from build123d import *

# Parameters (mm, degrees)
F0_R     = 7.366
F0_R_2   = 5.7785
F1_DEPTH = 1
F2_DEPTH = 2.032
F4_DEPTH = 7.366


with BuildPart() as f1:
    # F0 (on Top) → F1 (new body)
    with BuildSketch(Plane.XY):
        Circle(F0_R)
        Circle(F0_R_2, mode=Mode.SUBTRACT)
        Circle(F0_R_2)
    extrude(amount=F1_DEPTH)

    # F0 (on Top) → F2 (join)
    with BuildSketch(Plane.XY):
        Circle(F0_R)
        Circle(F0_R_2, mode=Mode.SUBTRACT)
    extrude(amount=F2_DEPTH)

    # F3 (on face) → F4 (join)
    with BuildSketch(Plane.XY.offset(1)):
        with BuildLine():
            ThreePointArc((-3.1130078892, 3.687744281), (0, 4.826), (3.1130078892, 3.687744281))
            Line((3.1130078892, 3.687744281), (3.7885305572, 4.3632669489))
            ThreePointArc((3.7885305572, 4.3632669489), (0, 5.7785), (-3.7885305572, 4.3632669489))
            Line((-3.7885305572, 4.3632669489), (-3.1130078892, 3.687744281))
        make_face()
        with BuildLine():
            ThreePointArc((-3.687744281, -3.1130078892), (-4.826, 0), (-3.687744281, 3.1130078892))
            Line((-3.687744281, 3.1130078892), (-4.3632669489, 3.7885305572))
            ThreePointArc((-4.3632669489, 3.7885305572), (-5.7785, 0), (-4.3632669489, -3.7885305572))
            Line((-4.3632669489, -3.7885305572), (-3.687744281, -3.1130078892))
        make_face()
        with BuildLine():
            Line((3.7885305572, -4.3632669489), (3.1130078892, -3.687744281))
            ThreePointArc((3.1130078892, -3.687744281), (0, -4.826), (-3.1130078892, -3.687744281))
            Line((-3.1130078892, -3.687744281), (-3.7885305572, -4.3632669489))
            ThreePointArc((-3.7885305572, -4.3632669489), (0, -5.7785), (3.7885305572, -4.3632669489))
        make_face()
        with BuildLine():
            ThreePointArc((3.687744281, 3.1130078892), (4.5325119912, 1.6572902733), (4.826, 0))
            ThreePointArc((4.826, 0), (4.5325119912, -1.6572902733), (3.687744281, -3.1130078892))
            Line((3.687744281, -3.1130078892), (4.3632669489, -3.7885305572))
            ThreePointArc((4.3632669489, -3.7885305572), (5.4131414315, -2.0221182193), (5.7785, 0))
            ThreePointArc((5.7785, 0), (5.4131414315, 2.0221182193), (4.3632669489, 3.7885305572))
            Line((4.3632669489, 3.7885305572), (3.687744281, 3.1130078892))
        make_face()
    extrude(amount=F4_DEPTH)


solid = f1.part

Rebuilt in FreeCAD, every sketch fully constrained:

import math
import FreeCAD as App
import Part
import Sketcher

V = App.Vector
Q = App.Units.Quantity

doc = App.newDocument("Part")
body = doc.addObject("PartDesign::Body", "Body")

# Sketch on XY plane
sketch1 = body.newObject("Sketcher::SketchObject", "Sketch")
sketch1.AttachmentSupport = (doc.getObject("XY_Plane"), [""])
sketch1.MapMode = "FlatFace"
sketch1.addGeometry(Part.Circle(V(0, 0, 0), V(0, 0, 1), 7), False)
sketch1.addConstraint([
    Sketcher.Constraint("Coincident", 0, 3, -1, 1),
    Sketcher.Constraint("Diameter", 0, Q("0.58 in")),
])
pad1 = body.newObject("PartDesign::Pad", "Pad")
pad1.Profile = sketch1
pad1.Length = 1

# Sketch on XY plane
sketch2 = body.newObject("Sketcher::SketchObject", "Sketch001")
sketch2.AttachmentSupport = (doc.getObject("XY_Plane"), [""])
sketch2.MapMode = "FlatFace"
sketch2.addGeometry([
    Part.Circle(V(0, 0, 0), V(0, 0, 1), 7),
    Part.Circle(V(0, 0, 0), V(0, 0, 1), 6),
], False)
sketch2.addConstraint([
    Sketcher.Constraint("Coincident", 0, 3, -1, 1),
    Sketcher.Constraint("Coincident", 1, 3, -1, 1),
    Sketcher.Constraint("Diameter", 0, Q("0.58 in")),
    Sketcher.Constraint("Diameter", 1, Q("0.455 in")),
])
pad2 = body.newObject("PartDesign::Pad", "Pad001")
pad2.Profile = sketch2
pad2.Length = Q("0.08 in")

# Sketch on XY plane
sketch3 = body.newObject("Sketcher::SketchObject", "Sketch002")
sketch3.AttachmentSupport = (doc.getObject("XY_Plane"), [""])
sketch3.MapMode = "FlatFace"
sketch3.AttachmentOffset = App.Placement(V(0, 0, 1), App.Rotation())
sketch3.addGeometry([
    Part.ArcOfCircle(Part.Circle(V(0, 0, 0), V(0, 0, 1), 4.8), math.radians(50), math.radians(130)),  # 0
    Part.LineSegment(V(3.1, 3.7, 0), V(3.8, 4.4, 0)),  # 1
    Part.ArcOfCircle(Part.Circle(V(0, 0, 0), V(0, 0, 1), 5.8), math.radians(49), math.radians(131)),  # 2
    Part.LineSegment(V(-3.8, 4.4, 0), V(-3.1, 3.7, 0)),  # 3
    Part.ArcOfCircle(Part.Circle(V(0, 0, 0), V(0, 0, 1), 4.8), math.radians(140), math.radians(220)),  # 4
    Part.LineSegment(V(-3.7, 3.1, 0), V(-4.4, 3.8, 0)),  # 5
    Part.ArcOfCircle(Part.Circle(V(0, 0, 0), V(0, 0, 1), 5.8), math.radians(139), math.radians(221)),  # 6
    Part.LineSegment(V(-4.4, -3.8, 0), V(-3.7, -3.1, 0)),  # 7
    Part.LineSegment(V(3.8, -4.4, 0), V(3.1, -3.7, 0)),  # 8
    Part.ArcOfCircle(Part.Circle(V(0, 0, 0), V(0, 0, 1), 4.8), math.radians(-130), math.radians(-50)),  # 9
    Part.LineSegment(V(-3.1, -3.7, 0), V(-3.8, -4.4, 0)),  # 10
    Part.ArcOfCircle(Part.Circle(V(0, 0, 0), V(0, 0, 1), 5.8), math.radians(-131), math.radians(-49)),  # 11
    Part.ArcOfCircle(Part.Circle(V(0, 0, 0), V(0, 0, 1), 4.8), math.radians(0), math.radians(40)),  # 12
    Part.ArcOfCircle(Part.Circle(V(0, 0, 0), V(0, 0, 1), 4.8), math.radians(-40), math.radians(0)),  # 13
    Part.LineSegment(V(3.7, -3.1, 0), V(4.4, -3.8, 0)),  # 14
    Part.ArcOfCircle(Part.Circle(V(0, 0, 0), V(0, 0, 1), 5.8), math.radians(-41), math.radians(0)),  # 15
    Part.ArcOfCircle(Part.Circle(V(0, 0, 0), V(0, 0, 1), 5.8), math.radians(0), math.radians(41)),  # 16
    Part.LineSegment(V(4.4, 3.8, 0), V(3.7, 3.1, 0)),  # 17
], False)
sketch3.addConstraint([
    Sketcher.Constraint("Coincident", 0, 1, 1, 1),
    Sketcher.Constraint("Coincident", 1, 2, 2, 1),
    Sketcher.Constraint("Coincident", 2, 2, 3, 1),
    Sketcher.Constraint("Coincident", 3, 2, 0, 2),
    Sketcher.Constraint("Coincident", 4, 1, 5, 1),
    Sketcher.Constraint("Coincident", 5, 2, 6, 1),
    Sketcher.Constraint("Coincident", 6, 2, 7, 1),
    Sketcher.Constraint("Coincident", 7, 2, 4, 2),
    Sketcher.Constraint("Coincident", 8, 2, 9, 2),
    Sketcher.Constraint("Coincident", 9, 1, 10, 1),
    Sketcher.Constraint("Coincident", 10, 2, 11, 1),
    Sketcher.Constraint("Coincident", 11, 2, 8, 1),
    Sketcher.Constraint("Tangent", 12, 1, 13, 2),
    Sketcher.Constraint("Coincident", 13, 1, 14, 1),
    Sketcher.Constraint("Coincident", 14, 2, 15, 1),
    Sketcher.Constraint("Tangent", 15, 2, 16, 1),
    Sketcher.Constraint("Coincident", 16, 2, 17, 1),
    Sketcher.Constraint("Coincident", 17, 2, 12, 2),
    Sketcher.Constraint("Coincident", 0, 3, -1, 1),
    Sketcher.Constraint("Coincident", 2, 3, -1, 1),
    Sketcher.Constraint("Coincident", 4, 3, -1, 1),
    Sketcher.Constraint("Coincident", 6, 3, -1, 1),
    Sketcher.Constraint("Coincident", 9, 3, -1, 1),
    Sketcher.Constraint("Coincident", 11, 3, -1, 1),
    Sketcher.Constraint("Coincident", 12, 3, -1, 1),
    Sketcher.Constraint("Coincident", 15, 3, -1, 1),
    Sketcher.Constraint("Equal", 0, 4),
    Sketcher.Constraint("Equal", 2, 6),
    Sketcher.Constraint("Equal", 4, 9),
    Sketcher.Constraint("Equal", 6, 11),
    Sketcher.Constraint("Equal", 9, 12),
    Sketcher.Constraint("Equal", 12, 13),
    Sketcher.Constraint("Equal", 11, 15),
    Sketcher.Constraint("Equal", 15, 16),
    Sketcher.Constraint("PointOnObject", 12, 1, -1),
    Sketcher.Constraint("PointOnObject", 15, 2, -1),
    Sketcher.Constraint("Perpendicular", 1, 3),
    Sketcher.Constraint("Parallel", 3, 5),
    Sketcher.Constraint("Perpendicular", 5, 7),
    Sketcher.Constraint("Perpendicular", 7, 8),
    Sketcher.Constraint("Perpendicular", 8, 10),
    Sketcher.Constraint("Perpendicular", 10, 14),
    Sketcher.Constraint("Perpendicular", 14, 17),
    Sketcher.Constraint("Horizontal", 1, 2, 2, 2),
    Sketcher.Constraint("Horizontal", 0, 1, 3, 2),
    Sketcher.Constraint("Horizontal", 8, 2, 9, 1),
    Sketcher.Constraint("Horizontal", 7, 2, 13, 1),
    Sketcher.Constraint("Horizontal", 5, 2, 16, 2),
    Sketcher.Constraint("Vertical", 5, 2, 6, 2),
    Sketcher.Constraint("Vertical", 0, 1, 8, 2),
    Sketcher.Constraint("Equal", 3, 5),
    Sketcher.Constraint("Radius", 0, Q("0.19 in")),
    Sketcher.Constraint("Radius", 2, Q("0.2275 in")),
    Sketcher.Constraint("DistanceX", -1, 1, 1, 2, 3.788531),
])
pad3 = body.newObject("PartDesign::Pad", "Pad002")
pad3.Profile = sketch3
pad3.Length = Q("0.29 in")

doc.recompute()
